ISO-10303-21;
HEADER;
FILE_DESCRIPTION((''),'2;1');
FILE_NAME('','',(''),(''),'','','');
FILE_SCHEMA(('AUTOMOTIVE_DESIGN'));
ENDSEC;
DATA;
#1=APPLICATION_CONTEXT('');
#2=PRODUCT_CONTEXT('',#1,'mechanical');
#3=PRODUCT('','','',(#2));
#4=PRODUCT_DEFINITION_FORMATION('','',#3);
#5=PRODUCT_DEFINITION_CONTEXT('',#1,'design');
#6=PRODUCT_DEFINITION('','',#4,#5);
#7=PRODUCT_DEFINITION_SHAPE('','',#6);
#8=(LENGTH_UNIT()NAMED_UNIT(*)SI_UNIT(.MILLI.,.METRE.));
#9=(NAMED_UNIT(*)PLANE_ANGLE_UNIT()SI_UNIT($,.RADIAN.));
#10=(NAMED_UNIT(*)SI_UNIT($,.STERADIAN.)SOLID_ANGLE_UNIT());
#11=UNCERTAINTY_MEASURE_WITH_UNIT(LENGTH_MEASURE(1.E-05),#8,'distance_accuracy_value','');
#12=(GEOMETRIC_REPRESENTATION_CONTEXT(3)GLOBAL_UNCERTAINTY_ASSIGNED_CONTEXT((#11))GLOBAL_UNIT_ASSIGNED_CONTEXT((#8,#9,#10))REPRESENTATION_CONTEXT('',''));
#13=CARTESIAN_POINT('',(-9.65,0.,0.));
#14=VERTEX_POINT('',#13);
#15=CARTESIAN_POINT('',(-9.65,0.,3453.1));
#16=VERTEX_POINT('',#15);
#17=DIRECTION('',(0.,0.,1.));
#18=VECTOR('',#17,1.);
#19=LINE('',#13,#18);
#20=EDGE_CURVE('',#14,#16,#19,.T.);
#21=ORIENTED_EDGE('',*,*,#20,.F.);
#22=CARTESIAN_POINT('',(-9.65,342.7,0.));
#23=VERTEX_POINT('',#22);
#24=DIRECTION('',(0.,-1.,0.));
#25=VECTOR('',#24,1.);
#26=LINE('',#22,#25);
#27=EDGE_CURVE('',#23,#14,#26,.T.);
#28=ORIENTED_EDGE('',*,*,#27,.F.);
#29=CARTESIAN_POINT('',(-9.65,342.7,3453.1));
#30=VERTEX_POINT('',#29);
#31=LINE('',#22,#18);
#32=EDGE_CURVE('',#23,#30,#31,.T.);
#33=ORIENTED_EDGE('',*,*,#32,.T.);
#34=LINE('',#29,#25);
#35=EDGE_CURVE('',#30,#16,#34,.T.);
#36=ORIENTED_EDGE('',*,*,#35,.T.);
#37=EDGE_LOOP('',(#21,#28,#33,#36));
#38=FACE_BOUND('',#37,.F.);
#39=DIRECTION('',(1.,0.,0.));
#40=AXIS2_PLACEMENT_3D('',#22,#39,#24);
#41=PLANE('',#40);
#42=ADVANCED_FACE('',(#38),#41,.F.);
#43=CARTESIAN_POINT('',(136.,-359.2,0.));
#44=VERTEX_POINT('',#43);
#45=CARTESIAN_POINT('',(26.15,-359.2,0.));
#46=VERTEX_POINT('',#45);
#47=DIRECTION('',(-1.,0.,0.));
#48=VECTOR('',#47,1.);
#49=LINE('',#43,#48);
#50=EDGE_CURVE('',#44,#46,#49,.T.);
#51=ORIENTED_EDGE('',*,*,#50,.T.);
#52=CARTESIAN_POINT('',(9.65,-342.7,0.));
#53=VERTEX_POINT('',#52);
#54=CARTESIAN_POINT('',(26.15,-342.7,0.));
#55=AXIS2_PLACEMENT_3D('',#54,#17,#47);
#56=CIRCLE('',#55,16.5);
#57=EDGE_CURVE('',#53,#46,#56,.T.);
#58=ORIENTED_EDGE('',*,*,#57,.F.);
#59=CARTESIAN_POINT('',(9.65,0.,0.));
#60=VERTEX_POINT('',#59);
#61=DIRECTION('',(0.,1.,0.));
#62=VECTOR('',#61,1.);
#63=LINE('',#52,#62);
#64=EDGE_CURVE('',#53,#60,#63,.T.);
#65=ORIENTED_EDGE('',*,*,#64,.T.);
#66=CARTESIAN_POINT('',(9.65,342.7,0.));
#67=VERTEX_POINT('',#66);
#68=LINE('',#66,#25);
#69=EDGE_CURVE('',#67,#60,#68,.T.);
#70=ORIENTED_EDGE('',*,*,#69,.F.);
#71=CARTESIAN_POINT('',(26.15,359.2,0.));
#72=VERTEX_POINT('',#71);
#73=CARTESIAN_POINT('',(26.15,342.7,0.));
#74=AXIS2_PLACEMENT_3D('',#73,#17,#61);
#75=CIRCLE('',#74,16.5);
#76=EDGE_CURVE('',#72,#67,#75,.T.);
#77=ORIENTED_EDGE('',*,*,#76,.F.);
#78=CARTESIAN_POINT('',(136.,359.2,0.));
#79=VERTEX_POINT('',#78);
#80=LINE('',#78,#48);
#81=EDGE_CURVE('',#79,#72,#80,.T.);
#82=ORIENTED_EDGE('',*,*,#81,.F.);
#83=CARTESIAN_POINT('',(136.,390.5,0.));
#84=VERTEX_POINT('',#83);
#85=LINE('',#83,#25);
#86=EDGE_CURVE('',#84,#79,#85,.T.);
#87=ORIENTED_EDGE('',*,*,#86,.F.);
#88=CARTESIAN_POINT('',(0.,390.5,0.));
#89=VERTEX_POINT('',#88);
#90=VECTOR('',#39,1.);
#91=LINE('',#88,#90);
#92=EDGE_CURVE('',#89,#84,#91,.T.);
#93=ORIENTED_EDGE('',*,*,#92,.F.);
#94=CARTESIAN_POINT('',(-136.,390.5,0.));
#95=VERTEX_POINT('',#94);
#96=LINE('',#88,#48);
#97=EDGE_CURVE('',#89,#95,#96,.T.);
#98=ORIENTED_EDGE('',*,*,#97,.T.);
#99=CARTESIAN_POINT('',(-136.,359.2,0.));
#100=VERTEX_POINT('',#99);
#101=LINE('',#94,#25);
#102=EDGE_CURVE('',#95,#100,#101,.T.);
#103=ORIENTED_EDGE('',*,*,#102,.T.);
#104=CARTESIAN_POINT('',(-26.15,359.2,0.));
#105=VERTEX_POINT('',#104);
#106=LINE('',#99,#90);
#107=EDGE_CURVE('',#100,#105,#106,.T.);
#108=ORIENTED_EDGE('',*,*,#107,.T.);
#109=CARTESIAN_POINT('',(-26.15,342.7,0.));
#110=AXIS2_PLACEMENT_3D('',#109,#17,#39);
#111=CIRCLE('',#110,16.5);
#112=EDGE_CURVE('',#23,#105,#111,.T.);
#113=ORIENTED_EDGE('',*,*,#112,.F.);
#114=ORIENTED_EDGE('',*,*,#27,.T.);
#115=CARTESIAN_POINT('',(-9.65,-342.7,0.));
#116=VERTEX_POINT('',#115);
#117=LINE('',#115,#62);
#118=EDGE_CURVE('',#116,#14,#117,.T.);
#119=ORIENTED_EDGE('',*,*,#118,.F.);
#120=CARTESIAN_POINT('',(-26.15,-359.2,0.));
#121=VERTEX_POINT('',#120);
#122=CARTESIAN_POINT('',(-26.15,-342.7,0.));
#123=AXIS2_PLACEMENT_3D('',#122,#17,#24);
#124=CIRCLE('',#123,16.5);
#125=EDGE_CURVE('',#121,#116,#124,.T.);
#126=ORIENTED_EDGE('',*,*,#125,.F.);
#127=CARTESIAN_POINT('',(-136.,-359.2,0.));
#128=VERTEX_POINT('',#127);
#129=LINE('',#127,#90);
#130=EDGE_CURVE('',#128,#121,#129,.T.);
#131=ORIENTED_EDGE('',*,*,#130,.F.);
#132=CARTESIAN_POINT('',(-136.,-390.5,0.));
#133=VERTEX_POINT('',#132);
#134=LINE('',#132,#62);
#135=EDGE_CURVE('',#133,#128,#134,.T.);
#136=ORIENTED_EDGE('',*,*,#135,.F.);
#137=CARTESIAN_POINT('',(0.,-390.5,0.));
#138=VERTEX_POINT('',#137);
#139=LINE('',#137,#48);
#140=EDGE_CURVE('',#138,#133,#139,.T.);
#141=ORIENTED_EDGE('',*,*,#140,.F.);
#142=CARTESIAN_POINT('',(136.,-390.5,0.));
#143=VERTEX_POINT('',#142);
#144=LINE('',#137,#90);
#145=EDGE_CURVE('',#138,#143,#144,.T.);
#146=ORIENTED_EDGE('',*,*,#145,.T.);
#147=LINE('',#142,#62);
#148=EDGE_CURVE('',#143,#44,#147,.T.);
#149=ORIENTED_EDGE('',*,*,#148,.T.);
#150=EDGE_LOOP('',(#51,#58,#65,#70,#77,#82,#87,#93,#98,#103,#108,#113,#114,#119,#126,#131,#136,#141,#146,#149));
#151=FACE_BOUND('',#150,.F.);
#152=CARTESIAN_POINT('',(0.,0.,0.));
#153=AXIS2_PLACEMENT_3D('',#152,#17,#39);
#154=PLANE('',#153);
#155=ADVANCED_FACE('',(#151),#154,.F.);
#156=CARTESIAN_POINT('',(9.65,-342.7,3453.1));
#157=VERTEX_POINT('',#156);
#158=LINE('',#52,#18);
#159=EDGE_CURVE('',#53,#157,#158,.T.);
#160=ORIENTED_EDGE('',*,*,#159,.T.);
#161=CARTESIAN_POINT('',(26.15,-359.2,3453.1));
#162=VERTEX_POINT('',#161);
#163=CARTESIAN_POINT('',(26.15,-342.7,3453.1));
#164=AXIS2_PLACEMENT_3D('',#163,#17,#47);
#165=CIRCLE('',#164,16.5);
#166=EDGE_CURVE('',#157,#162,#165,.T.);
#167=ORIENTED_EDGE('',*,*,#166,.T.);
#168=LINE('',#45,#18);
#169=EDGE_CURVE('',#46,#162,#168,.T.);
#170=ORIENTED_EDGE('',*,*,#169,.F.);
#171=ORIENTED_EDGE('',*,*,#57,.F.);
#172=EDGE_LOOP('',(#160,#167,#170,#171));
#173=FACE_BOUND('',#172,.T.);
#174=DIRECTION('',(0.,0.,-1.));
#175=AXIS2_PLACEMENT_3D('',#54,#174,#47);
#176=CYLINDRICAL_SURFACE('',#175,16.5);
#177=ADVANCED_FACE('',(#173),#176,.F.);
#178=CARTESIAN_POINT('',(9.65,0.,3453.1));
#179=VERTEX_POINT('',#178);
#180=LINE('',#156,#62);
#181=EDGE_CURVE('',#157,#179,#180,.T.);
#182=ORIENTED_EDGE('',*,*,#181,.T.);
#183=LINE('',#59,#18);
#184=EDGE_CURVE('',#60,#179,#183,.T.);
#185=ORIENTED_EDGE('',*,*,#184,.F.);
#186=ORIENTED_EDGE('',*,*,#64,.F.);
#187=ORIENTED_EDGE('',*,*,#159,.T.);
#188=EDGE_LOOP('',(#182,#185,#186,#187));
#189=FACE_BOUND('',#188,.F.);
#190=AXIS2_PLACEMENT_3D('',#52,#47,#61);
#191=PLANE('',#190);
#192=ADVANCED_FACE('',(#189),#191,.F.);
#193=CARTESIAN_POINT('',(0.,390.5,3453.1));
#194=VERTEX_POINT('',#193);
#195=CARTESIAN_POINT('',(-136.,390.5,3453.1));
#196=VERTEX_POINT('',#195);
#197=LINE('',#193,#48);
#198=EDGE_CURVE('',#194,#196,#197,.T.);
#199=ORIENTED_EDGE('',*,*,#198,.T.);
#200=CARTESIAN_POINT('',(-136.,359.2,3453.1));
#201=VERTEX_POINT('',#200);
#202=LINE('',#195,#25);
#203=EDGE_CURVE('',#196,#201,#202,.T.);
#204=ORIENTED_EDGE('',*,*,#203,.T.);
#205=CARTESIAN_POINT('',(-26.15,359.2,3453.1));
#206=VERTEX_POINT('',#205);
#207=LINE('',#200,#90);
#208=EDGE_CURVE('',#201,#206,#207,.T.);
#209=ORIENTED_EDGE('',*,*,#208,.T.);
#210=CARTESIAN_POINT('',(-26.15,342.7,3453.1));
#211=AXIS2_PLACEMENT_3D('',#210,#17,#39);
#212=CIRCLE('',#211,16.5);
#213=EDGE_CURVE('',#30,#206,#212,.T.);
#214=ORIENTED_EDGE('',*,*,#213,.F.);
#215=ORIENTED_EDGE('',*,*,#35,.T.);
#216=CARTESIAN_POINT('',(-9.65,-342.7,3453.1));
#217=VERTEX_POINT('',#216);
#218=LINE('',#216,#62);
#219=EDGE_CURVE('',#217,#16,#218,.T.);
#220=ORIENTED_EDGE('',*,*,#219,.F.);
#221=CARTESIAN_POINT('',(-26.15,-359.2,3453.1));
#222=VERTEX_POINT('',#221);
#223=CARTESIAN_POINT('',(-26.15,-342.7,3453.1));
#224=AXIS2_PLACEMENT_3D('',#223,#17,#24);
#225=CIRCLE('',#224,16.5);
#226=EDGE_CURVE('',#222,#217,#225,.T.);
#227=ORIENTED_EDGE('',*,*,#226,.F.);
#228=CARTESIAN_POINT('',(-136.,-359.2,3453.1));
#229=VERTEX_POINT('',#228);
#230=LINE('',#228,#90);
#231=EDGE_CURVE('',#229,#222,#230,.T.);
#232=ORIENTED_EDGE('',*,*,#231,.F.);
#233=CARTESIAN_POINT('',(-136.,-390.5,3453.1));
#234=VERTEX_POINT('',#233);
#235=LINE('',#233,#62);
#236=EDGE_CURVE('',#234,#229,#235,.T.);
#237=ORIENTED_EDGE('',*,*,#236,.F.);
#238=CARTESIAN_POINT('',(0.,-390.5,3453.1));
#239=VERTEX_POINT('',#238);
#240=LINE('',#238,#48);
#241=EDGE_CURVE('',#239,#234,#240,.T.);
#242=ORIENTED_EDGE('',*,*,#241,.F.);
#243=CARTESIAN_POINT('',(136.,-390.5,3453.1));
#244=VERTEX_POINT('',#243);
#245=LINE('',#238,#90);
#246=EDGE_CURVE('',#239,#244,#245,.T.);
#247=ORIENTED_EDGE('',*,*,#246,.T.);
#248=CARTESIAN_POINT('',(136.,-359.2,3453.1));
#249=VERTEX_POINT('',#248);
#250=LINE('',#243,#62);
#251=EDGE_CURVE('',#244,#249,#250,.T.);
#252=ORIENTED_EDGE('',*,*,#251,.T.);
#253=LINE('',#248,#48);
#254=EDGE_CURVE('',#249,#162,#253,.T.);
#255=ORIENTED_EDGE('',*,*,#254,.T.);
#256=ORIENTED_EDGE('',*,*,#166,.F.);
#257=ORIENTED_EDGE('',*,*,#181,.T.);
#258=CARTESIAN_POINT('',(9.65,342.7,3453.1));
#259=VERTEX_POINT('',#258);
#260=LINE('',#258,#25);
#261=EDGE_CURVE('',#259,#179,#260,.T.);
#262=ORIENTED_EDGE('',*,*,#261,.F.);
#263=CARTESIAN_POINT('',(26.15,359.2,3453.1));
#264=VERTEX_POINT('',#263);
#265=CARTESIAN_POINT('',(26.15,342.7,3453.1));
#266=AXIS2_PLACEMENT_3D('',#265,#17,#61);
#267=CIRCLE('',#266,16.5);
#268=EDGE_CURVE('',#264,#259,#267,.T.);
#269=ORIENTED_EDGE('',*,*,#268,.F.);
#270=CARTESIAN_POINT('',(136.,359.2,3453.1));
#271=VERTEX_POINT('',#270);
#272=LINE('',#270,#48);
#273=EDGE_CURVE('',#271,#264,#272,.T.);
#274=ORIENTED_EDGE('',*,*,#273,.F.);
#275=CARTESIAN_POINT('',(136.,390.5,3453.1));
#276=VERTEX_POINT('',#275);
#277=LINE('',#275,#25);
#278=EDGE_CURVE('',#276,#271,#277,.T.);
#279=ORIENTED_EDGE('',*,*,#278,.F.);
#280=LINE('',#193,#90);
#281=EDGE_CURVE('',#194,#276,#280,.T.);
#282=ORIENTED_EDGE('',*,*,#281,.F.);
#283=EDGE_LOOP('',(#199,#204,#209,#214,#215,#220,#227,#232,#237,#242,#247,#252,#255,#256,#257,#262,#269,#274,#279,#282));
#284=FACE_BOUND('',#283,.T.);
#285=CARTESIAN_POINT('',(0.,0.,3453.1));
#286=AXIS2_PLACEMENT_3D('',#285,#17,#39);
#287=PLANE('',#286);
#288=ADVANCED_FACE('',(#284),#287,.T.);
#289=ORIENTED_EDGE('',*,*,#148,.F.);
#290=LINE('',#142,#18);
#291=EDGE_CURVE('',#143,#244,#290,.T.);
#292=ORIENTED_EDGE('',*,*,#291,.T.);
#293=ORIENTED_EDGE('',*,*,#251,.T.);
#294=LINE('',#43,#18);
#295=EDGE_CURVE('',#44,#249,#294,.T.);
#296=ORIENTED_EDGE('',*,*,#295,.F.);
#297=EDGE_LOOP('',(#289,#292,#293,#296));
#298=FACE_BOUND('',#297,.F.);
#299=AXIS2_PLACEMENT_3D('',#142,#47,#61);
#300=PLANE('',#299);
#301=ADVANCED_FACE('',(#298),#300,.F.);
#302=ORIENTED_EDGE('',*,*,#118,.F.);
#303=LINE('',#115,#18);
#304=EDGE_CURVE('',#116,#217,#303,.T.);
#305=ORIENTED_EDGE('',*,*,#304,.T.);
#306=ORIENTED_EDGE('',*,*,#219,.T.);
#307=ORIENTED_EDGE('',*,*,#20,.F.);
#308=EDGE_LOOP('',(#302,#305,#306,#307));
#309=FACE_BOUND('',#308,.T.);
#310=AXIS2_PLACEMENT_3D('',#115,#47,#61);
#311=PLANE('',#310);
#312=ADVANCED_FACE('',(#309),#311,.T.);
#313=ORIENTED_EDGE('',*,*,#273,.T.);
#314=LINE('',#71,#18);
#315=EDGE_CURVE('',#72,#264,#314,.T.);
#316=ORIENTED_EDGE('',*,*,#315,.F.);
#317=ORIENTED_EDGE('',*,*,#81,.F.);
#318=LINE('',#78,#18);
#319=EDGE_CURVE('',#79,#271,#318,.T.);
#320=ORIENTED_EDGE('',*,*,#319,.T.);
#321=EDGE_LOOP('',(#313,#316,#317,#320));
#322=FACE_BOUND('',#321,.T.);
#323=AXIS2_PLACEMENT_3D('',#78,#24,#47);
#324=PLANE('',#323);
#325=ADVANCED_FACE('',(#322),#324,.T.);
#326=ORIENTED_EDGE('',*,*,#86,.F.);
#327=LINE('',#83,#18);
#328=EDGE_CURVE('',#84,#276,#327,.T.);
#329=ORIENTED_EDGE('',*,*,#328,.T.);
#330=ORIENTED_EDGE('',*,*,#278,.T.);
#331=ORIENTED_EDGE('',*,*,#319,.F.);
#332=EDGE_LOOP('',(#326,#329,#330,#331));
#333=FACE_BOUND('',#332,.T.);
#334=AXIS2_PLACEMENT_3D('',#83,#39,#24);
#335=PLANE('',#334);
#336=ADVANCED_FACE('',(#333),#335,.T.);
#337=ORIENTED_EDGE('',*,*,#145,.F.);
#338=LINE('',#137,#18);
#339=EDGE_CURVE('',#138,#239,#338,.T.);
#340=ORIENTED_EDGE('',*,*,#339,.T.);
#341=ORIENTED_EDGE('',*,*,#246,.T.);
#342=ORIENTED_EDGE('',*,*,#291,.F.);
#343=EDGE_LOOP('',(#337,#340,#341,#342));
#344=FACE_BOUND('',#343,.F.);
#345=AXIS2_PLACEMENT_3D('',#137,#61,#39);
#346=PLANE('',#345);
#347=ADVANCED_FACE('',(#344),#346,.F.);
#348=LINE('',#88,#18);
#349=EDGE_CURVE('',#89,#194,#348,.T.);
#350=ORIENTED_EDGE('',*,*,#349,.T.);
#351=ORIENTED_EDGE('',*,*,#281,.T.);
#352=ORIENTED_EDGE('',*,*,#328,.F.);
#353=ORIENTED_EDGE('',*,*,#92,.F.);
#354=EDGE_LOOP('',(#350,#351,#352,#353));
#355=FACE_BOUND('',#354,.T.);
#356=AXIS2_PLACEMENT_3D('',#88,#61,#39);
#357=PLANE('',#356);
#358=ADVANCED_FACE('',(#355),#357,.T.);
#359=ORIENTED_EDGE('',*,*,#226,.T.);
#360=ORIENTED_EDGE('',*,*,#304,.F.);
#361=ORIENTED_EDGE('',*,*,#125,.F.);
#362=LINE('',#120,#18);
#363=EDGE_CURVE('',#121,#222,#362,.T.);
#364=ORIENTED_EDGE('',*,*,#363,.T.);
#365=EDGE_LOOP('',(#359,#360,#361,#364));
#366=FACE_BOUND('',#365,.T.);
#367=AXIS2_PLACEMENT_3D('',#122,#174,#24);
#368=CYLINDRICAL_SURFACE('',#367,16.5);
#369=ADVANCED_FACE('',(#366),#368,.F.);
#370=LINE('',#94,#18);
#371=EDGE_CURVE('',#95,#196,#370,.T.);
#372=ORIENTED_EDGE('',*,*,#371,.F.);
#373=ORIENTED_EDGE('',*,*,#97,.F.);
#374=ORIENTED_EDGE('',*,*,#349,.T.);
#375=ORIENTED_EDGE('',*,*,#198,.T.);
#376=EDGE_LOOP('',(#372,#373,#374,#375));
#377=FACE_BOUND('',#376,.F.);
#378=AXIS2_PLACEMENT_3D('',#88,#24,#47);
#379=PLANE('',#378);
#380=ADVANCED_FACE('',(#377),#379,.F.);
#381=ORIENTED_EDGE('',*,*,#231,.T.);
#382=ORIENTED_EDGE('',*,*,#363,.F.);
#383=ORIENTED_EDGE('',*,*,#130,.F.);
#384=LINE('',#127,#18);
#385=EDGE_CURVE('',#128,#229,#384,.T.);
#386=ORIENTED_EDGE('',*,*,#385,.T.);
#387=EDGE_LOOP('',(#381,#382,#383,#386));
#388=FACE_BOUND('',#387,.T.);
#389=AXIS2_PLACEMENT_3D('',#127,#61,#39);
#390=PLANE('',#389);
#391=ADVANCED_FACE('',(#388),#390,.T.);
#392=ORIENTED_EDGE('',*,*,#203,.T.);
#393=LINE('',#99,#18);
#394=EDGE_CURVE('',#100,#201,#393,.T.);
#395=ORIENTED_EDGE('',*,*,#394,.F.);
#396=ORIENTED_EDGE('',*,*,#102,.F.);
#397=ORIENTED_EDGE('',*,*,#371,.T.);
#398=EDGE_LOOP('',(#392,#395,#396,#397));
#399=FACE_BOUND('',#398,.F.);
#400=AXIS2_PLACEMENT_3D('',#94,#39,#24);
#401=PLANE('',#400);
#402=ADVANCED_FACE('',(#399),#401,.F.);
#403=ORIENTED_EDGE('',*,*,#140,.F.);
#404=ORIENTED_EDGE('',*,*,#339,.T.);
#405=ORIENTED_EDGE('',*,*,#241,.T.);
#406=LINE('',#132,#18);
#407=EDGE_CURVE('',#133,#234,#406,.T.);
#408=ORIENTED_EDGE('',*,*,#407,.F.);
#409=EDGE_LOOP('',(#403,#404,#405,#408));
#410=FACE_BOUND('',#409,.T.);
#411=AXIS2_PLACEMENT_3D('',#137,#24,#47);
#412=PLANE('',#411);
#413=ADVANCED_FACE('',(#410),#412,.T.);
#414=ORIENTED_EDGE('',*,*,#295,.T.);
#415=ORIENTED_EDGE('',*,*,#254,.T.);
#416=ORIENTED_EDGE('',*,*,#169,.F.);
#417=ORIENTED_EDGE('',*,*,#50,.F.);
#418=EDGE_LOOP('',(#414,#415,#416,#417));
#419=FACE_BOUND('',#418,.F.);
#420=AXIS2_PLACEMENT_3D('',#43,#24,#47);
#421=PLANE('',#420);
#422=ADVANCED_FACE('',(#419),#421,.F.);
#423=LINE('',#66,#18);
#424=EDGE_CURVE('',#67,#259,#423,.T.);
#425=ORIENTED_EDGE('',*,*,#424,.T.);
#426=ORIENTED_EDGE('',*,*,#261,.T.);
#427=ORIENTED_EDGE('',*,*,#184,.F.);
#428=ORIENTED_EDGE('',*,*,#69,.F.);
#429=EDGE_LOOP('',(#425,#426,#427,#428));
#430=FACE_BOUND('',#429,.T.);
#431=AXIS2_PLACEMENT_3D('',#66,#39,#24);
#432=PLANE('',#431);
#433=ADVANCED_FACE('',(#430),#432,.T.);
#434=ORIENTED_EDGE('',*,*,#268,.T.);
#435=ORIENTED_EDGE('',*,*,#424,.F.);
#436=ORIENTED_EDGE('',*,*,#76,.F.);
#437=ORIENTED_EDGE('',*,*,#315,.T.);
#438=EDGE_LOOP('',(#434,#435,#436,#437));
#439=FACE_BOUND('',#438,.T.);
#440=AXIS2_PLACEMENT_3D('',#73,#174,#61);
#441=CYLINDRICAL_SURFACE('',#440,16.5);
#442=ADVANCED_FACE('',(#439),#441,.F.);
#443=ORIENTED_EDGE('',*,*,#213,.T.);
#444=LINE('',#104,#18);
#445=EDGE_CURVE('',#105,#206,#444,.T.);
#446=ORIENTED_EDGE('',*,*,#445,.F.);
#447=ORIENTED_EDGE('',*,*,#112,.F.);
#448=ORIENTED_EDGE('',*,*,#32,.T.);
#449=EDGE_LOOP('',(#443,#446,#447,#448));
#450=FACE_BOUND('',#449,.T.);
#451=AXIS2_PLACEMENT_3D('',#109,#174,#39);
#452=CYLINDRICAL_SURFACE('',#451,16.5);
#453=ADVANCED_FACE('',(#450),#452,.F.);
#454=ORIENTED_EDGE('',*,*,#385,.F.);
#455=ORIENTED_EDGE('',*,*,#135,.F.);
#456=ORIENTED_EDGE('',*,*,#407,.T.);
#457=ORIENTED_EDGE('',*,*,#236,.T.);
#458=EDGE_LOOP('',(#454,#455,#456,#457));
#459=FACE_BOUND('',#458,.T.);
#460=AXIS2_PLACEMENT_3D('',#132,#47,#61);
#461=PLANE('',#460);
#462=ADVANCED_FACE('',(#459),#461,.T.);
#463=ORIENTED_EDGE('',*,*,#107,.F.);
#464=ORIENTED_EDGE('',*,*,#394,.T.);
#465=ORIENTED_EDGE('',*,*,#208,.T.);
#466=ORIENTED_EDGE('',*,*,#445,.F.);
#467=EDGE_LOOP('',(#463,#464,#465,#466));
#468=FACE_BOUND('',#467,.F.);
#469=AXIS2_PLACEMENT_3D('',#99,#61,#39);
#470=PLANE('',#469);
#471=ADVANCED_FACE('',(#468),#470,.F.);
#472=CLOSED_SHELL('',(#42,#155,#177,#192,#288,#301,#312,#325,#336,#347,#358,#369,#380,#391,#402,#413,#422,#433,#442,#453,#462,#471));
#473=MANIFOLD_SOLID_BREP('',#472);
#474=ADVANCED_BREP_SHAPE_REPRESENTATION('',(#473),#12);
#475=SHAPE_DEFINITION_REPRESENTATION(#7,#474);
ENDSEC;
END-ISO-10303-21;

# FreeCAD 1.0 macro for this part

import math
import FreeCAD as App
import Part
import Sketcher

V = App.Vector

doc = App.newDocument("Part")
body = doc.addObject("PartDesign::Body", "Body")

# Sketch on XY plane
sketch1 = body.newObject("Sketcher::SketchObject", "Sketch")
sketch1.AttachmentSupport = (doc.getObject("XY_Plane"), [""])
sketch1.MapMode = "FlatFace"
sketch1.addGeometry([
    Part.LineSegment(V(-136, -359.2, 0), V(-136, -390.5, 0)),  # 0
    Part.LineSegment(V(-136, -390.5, 0), V(136, -390.5, 0)),  # 1
    Part.LineSegment(V(136, -390.5, 0), V(136, -359.2, 0)),  # 2
    Part.LineSegment(V(136, -359.2, 0), V(26.15, -359.2, 0)),  # 3
    Part.ArcOfCircle(Part.Circle(V(26.15, -342.7, 0), V(0, 0, 1), 16.5), math.radians(180), math.radians(270)),  # 4
    Part.LineSegment(V(9.65, -342.7, 0), V(9.65, 342.7, 0)),  # 5
    Part.ArcOfCircle(Part.Circle(V(26.15, 342.7, 0), V(0, 0, 1), 16.5), math.radians(90), math.radians(180)),  # 6
    Part.LineSegment(V(26.15, 359.2, 0), V(136, 359.2, 0)),  # 7
    Part.LineSegment(V(136, 359.2, 0), V(136, 390.5, 0)),  # 8
    Part.LineSegment(V(136, 390.5, 0), V(-136, 390.5, 0)),  # 9
    Part.LineSegment(V(-136, 390.5, 0), V(-136, 359.2, 0)),  # 10
    Part.LineSegment(V(-136, 359.2, 0), V(-26.15, 359.2, 0)),  # 11
    Part.ArcOfCircle(Part.Circle(V(-26.15, 342.7, 0), V(0, 0, 1), 16.5), math.radians(0), math.radians(90)),  # 12
    Part.LineSegment(V(-9.65, 342.7, 0), V(-9.65, -342.7, 0)),  # 13
    Part.ArcOfCircle(Part.Circle(V(-26.15, -342.7, 0), V(0, 0, 1), 16.5), math.radians(-90), math.radians(0)),  # 14
    Part.LineSegment(V(-26.15, -359.2, 0), V(-136, -359.2, 0)),  # 15
], False)
sketch1.addConstraint([
    Sketcher.Constraint("Coincident", 0, 2, 1, 1),
    Sketcher.Constraint("Coincident", 1, 2, 2, 1),
    Sketcher.Constraint("Coincident", 2, 2, 3, 1),
    Sketcher.Constraint("Tangent", 3, 2, 4, 2),
    Sketcher.Constraint("Tangent", 4, 1, 5, 1),
    Sketcher.Constraint("Tangent", 5, 2, 6, 2),
    Sketcher.Constraint("Tangent", 6, 1, 7, 1),
    Sketcher.Constraint("Coincident", 7, 2, 8, 1),
    Sketcher.Constraint("Coincident", 8, 2, 9, 1),
    Sketcher.Constraint("Coincident", 9, 2, 10, 1),
    Sketcher.Constraint("Coincident", 10, 2, 11, 1),
    Sketcher.Constraint("Tangent", 11, 2, 12, 2),
    Sketcher.Constraint("Tangent", 12, 1, 13, 1),
    Sketcher.Constraint("Tangent", 13, 2, 14, 2),
    Sketcher.Constraint("Tangent", 14, 1, 15, 1),
    Sketcher.Constraint("Coincident", 15, 2, 0, 1),
    Sketcher.Constraint("Vertical", 0),
    Sketcher.Constraint("Horizontal", 1),
    Sketcher.Constraint("Vertical", 2),
    Sketcher.Constraint("Horizontal", 3),
    Sketcher.Constraint("Vertical", 5),
    Sketcher.Constraint("Horizontal", 7),
    Sketcher.Constraint("Vertical", 8),
    Sketcher.Constraint("Horizontal", 9),
    Sketcher.Constraint("Vertical", 10),
    Sketcher.Constraint("Horizontal", 11),
    Sketcher.Constraint("Vertical", 13),
    Sketcher.Constraint("Horizontal", 15),
    Sketcher.Constraint("Equal", 4, 6),
    Sketcher.Constraint("Equal", 6, 12),
    Sketcher.Constraint("Equal", 12, 14),
    Sketcher.Constraint("Symmetric", 4, 3, 12, 3, -1, 1),
    Sketcher.Constraint("Symmetric", 0, 2, 8, 2, -1, 1),
    Sketcher.Constraint("Symmetric", 7, 2, 10, 2, -2),
    Sketcher.Constraint("Symmetric", 2, 2, 15, 2, -2),
    Sketcher.Constraint("Radius", 4, 16.5),
    Sketcher.Constraint("DistanceY", 0, 2, 0, 1, 31.3),
    Sketcher.Constraint("DistanceX", 0, 2, -1, 1, 136.0),
    Sketcher.Constraint("DistanceY", 0, 2, -1, 1, 390.5),
    Sketcher.Constraint("DistanceX", -1, 1, 4, 1, 9.65),
])
pad1 = body.newObject("PartDesign::Pad", "Pad")
pad1.Profile = sketch1
pad1.Length = 3453.1

doc.recompute()
